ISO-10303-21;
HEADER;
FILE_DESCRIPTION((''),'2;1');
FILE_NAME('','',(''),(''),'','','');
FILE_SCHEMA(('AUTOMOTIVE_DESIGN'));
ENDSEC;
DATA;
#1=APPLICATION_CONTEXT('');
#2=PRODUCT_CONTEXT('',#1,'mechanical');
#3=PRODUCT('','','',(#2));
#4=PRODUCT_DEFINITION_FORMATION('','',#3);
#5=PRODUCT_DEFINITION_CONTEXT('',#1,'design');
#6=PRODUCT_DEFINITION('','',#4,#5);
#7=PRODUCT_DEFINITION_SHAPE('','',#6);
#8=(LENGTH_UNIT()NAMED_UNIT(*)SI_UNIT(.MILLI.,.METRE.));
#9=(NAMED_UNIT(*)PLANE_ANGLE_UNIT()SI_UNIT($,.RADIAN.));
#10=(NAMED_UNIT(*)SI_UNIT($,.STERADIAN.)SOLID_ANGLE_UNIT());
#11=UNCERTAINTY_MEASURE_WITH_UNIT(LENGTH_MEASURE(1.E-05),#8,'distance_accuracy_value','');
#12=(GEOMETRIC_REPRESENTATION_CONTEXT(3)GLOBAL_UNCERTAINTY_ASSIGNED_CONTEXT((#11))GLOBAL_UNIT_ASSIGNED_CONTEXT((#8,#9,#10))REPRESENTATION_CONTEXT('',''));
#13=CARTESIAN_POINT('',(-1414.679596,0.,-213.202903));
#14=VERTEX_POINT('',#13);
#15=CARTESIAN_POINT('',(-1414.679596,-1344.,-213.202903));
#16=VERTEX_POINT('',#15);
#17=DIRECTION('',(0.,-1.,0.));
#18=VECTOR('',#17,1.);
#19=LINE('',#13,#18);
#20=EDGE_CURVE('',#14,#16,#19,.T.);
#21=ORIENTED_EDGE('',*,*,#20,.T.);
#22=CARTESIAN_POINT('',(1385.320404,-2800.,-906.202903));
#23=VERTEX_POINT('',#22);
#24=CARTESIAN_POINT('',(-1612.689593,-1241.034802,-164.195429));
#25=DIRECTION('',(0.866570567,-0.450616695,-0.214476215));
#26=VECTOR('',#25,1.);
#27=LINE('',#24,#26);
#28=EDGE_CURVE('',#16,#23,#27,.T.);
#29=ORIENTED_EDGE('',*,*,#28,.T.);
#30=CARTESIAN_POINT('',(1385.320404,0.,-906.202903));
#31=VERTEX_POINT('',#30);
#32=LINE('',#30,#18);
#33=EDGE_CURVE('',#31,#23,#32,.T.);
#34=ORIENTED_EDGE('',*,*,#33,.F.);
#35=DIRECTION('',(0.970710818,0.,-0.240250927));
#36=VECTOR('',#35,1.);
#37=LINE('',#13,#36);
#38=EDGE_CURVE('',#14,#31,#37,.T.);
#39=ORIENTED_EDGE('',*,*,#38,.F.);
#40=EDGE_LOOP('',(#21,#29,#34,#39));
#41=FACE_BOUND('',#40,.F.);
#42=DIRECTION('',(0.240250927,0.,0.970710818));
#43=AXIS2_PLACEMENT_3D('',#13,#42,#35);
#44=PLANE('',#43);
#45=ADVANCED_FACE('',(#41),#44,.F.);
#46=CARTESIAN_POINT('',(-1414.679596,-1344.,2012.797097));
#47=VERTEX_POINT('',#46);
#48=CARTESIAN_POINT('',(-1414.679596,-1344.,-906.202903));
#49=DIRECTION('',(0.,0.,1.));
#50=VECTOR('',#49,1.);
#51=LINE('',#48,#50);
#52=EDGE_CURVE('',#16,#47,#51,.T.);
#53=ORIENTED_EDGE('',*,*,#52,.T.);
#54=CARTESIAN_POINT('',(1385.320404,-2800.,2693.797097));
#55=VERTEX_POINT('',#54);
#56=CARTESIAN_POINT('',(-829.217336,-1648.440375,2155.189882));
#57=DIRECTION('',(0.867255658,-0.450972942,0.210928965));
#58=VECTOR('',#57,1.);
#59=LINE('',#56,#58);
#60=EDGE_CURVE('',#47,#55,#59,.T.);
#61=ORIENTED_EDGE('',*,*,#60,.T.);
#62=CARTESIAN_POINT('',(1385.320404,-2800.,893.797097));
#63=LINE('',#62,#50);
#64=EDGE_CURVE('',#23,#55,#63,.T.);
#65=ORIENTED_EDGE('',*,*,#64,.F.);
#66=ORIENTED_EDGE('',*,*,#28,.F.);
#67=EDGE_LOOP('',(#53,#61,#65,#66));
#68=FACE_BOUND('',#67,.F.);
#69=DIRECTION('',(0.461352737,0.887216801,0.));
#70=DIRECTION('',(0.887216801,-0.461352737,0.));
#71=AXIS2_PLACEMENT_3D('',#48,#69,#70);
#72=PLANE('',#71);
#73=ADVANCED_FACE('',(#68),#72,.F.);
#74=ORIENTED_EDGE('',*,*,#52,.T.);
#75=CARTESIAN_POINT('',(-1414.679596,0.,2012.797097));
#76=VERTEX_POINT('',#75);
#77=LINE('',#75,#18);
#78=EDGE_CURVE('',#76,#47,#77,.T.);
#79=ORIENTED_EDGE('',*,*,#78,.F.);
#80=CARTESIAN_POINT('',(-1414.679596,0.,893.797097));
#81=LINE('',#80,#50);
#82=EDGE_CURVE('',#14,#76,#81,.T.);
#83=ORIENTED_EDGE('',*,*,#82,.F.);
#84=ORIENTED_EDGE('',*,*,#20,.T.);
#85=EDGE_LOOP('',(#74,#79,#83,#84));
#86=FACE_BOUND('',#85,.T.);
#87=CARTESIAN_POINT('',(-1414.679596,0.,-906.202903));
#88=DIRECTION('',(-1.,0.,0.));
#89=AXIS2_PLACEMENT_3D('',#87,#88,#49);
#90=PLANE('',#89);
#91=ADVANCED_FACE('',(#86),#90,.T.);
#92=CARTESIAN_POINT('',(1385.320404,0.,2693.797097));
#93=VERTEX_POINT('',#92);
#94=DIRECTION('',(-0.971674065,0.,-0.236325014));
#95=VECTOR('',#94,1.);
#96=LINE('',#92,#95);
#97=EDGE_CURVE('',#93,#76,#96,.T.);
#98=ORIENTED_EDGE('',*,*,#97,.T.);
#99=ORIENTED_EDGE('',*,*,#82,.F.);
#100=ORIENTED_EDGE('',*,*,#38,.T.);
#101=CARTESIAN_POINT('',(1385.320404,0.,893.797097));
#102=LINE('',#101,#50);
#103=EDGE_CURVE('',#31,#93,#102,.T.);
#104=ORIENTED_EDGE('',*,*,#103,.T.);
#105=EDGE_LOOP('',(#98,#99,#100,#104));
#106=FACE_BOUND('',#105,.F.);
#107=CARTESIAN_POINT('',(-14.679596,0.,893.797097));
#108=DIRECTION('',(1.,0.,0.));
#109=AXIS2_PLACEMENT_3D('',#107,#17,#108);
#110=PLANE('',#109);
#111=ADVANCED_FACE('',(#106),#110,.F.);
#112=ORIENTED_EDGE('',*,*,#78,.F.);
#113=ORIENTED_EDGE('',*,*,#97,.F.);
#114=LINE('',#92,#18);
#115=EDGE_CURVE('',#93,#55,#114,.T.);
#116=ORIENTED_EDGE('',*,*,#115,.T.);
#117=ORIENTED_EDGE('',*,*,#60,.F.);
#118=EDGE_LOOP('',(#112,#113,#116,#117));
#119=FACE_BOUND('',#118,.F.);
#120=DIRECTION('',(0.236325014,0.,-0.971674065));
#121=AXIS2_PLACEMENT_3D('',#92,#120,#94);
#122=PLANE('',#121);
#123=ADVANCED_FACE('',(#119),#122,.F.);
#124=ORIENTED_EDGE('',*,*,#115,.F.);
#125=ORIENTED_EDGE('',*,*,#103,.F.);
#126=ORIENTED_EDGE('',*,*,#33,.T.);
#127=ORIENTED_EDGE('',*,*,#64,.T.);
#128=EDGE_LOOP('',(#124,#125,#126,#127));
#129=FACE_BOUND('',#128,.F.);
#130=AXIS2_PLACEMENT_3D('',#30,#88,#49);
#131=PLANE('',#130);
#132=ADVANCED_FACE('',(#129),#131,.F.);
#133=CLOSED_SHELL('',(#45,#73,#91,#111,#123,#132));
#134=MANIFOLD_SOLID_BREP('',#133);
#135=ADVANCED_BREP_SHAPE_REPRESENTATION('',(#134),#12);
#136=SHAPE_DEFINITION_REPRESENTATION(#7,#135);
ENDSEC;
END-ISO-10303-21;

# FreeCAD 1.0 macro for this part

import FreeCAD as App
import Part
import Sketcher

V = App.Vector


def add_polygon(sketch, points):
    """Adds a closed chain of lines whose ends are joined by coincident constraints."""
    first, n = sketch.GeometryCount, len(points)
    for a, b in zip(points, points[1:] + points[:1]):
        sketch.addGeometry(Part.LineSegment(App.Vector(*a, 0), App.Vector(*b, 0)), False)
    for i in range(n):
        sketch.addConstraint(Sketcher.Constraint("Coincident", first + i, 2, first + (i + 1) % n, 1))

doc = App.newDocument("Part")
body = doc.addObject("PartDesign::Body", "Body")

# Sketch on XZ plane
sketch1 = body.newObject("Sketcher::SketchObject", "Sketch")
sketch1.AttachmentSupport = (doc.getObject("XZ_Plane"), [""])
sketch1.MapMode = "FlatFace"
add_polygon(sketch1, [(-1415, 2694), (-1415, -906), (1385, -906), (1385, 2694)])  # lines 0-3
sketch1.addConstraint(Sketcher.Constraint("Vertical", 0))
sketch1.addConstraint(Sketcher.Constraint("Horizontal", 1))
sketch1.addConstraint(Sketcher.Constraint("Vertical", 2))
sketch1.addConstraint(Sketcher.Constraint("Horizontal", 3))
sketch1.addConstraint(Sketcher.Constraint("DistanceX", 1, 1, 1, 2, 2800.0))
sketch1.addConstraint(Sketcher.Constraint("DistanceY", 0, 2, 0, 1, 3600.0))
sketch1.addConstraint(Sketcher.Constraint("DistanceX", 0, 2, -1, 1, 1414.679596))
sketch1.addConstraint(Sketcher.Constraint("DistanceY", 0, 2, -1, 1, 906.202903))
pad1 = body.newObject("PartDesign::Pad", "Pad")
pad1.Profile = sketch1
pad1.Length = 2800

# Sketch on XZ plane
sketch2 = body.newObject("Sketcher::SketchObject", "Sketch001")
sketch2.AttachmentSupport = (doc.getObject("XZ_Plane"), [""])
sketch2.MapMode = "FlatFace"
add_polygon(sketch2, [(-1415, 2694), (1385, 2694), (-1415, 2013)])  # lines 0-2
sketch2.addConstraint(Sketcher.Constraint("Horizontal", 0))
sketch2.addConstraint(Sketcher.Constraint("Vertical", 2))
sketch2.addConstraint(Sketcher.Constraint("DistanceX", 0, 1, 0, 2, 2800.0))
sketch2.addConstraint(Sketcher.Constraint("DistanceY", 2, 1, 2, 2, 681.0))
sketch2.addConstraint(Sketcher.Constraint("DistanceX", -1, 1, 0, 2, 1385.320404))
sketch2.addConstraint(Sketcher.Constraint("DistanceY", -1, 1, 0, 2, 2693.797097))
pocket1 = body.newObject("PartDesign::Pocket", "Pocket")
pocket1.Profile = sketch2
pocket1.Type = "ThroughAll"
pocket1.Reversed = True

# Sketch on XY plane
sketch3 = body.newObject("Sketcher::SketchObject", "Sketch002")
sketch3.AttachmentSupport = (doc.getObject("XY_Plane"), [""])
sketch3.MapMode = "FlatFace"
sketch3.AttachmentOffset = App.Placement(V(0, 0, -906.202903), App.Rotation())
add_polygon(sketch3, [(1385, -2800), (-1415, -2800), (-1415, -1344)])  # lines 0-2
sketch3.addConstraint(Sketcher.Constraint("Horizontal", 0))
sketch3.addConstraint(Sketcher.Constraint("Vertical", 1))
sketch3.addConstraint(Sketcher.Constraint("DistanceX", 0, 2, 0, 1, 2800.0))
sketch3.addConstraint(Sketcher.Constraint("DistanceY", 1, 1, 1, 2, 1456.0))
sketch3.addConstraint(Sketcher.Constraint("DistanceY", 0, 2, -1, 1, 2800.0))
sketch3.addConstraint(Sketcher.Constraint("DistanceX", 0, 2, -1, 1, 1414.679596))
pocket2 = body.newObject("PartDesign::Pocket", "Pocket001")
pocket2.Profile = sketch3
pocket2.Type = "ThroughAll"
pocket2.Reversed = True

# Sketch on XZ plane
sketch4 = body.newObject("Sketcher::SketchObject", "Sketch003")
sketch4.AttachmentSupport = (doc.getObject("XZ_Plane"), [""])
sketch4.MapMode = "FlatFace"
add_polygon(sketch4, [(1385, -906), (-1415, -906), (-1415, -213)])  # lines 0-2
sketch4.addConstraint(Sketcher.Constraint("Horizontal", 0))
sketch4.addConstraint(Sketcher.Constraint("Vertical", 1))
sketch4.addConstraint(Sketcher.Constraint("DistanceX", 0, 2, 0, 1, 2800.0))
sketch4.addConstraint(Sketcher.Constraint("DistanceY", 1, 1, 1, 2, 693.0))
sketch4.addConstraint(Sketcher.Constraint("DistanceX", 0, 2, -1, 1, 1414.679596))
sketch4.addConstraint(Sketcher.Constraint("DistanceY", 0, 2, -1, 1, 906.202903))
pocket3 = body.newObject("PartDesign::Pocket", "Pocket002")
pocket3.Profile = sketch4
pocket3.Length = 2800
pocket3.Reversed = True

doc.recompute()
